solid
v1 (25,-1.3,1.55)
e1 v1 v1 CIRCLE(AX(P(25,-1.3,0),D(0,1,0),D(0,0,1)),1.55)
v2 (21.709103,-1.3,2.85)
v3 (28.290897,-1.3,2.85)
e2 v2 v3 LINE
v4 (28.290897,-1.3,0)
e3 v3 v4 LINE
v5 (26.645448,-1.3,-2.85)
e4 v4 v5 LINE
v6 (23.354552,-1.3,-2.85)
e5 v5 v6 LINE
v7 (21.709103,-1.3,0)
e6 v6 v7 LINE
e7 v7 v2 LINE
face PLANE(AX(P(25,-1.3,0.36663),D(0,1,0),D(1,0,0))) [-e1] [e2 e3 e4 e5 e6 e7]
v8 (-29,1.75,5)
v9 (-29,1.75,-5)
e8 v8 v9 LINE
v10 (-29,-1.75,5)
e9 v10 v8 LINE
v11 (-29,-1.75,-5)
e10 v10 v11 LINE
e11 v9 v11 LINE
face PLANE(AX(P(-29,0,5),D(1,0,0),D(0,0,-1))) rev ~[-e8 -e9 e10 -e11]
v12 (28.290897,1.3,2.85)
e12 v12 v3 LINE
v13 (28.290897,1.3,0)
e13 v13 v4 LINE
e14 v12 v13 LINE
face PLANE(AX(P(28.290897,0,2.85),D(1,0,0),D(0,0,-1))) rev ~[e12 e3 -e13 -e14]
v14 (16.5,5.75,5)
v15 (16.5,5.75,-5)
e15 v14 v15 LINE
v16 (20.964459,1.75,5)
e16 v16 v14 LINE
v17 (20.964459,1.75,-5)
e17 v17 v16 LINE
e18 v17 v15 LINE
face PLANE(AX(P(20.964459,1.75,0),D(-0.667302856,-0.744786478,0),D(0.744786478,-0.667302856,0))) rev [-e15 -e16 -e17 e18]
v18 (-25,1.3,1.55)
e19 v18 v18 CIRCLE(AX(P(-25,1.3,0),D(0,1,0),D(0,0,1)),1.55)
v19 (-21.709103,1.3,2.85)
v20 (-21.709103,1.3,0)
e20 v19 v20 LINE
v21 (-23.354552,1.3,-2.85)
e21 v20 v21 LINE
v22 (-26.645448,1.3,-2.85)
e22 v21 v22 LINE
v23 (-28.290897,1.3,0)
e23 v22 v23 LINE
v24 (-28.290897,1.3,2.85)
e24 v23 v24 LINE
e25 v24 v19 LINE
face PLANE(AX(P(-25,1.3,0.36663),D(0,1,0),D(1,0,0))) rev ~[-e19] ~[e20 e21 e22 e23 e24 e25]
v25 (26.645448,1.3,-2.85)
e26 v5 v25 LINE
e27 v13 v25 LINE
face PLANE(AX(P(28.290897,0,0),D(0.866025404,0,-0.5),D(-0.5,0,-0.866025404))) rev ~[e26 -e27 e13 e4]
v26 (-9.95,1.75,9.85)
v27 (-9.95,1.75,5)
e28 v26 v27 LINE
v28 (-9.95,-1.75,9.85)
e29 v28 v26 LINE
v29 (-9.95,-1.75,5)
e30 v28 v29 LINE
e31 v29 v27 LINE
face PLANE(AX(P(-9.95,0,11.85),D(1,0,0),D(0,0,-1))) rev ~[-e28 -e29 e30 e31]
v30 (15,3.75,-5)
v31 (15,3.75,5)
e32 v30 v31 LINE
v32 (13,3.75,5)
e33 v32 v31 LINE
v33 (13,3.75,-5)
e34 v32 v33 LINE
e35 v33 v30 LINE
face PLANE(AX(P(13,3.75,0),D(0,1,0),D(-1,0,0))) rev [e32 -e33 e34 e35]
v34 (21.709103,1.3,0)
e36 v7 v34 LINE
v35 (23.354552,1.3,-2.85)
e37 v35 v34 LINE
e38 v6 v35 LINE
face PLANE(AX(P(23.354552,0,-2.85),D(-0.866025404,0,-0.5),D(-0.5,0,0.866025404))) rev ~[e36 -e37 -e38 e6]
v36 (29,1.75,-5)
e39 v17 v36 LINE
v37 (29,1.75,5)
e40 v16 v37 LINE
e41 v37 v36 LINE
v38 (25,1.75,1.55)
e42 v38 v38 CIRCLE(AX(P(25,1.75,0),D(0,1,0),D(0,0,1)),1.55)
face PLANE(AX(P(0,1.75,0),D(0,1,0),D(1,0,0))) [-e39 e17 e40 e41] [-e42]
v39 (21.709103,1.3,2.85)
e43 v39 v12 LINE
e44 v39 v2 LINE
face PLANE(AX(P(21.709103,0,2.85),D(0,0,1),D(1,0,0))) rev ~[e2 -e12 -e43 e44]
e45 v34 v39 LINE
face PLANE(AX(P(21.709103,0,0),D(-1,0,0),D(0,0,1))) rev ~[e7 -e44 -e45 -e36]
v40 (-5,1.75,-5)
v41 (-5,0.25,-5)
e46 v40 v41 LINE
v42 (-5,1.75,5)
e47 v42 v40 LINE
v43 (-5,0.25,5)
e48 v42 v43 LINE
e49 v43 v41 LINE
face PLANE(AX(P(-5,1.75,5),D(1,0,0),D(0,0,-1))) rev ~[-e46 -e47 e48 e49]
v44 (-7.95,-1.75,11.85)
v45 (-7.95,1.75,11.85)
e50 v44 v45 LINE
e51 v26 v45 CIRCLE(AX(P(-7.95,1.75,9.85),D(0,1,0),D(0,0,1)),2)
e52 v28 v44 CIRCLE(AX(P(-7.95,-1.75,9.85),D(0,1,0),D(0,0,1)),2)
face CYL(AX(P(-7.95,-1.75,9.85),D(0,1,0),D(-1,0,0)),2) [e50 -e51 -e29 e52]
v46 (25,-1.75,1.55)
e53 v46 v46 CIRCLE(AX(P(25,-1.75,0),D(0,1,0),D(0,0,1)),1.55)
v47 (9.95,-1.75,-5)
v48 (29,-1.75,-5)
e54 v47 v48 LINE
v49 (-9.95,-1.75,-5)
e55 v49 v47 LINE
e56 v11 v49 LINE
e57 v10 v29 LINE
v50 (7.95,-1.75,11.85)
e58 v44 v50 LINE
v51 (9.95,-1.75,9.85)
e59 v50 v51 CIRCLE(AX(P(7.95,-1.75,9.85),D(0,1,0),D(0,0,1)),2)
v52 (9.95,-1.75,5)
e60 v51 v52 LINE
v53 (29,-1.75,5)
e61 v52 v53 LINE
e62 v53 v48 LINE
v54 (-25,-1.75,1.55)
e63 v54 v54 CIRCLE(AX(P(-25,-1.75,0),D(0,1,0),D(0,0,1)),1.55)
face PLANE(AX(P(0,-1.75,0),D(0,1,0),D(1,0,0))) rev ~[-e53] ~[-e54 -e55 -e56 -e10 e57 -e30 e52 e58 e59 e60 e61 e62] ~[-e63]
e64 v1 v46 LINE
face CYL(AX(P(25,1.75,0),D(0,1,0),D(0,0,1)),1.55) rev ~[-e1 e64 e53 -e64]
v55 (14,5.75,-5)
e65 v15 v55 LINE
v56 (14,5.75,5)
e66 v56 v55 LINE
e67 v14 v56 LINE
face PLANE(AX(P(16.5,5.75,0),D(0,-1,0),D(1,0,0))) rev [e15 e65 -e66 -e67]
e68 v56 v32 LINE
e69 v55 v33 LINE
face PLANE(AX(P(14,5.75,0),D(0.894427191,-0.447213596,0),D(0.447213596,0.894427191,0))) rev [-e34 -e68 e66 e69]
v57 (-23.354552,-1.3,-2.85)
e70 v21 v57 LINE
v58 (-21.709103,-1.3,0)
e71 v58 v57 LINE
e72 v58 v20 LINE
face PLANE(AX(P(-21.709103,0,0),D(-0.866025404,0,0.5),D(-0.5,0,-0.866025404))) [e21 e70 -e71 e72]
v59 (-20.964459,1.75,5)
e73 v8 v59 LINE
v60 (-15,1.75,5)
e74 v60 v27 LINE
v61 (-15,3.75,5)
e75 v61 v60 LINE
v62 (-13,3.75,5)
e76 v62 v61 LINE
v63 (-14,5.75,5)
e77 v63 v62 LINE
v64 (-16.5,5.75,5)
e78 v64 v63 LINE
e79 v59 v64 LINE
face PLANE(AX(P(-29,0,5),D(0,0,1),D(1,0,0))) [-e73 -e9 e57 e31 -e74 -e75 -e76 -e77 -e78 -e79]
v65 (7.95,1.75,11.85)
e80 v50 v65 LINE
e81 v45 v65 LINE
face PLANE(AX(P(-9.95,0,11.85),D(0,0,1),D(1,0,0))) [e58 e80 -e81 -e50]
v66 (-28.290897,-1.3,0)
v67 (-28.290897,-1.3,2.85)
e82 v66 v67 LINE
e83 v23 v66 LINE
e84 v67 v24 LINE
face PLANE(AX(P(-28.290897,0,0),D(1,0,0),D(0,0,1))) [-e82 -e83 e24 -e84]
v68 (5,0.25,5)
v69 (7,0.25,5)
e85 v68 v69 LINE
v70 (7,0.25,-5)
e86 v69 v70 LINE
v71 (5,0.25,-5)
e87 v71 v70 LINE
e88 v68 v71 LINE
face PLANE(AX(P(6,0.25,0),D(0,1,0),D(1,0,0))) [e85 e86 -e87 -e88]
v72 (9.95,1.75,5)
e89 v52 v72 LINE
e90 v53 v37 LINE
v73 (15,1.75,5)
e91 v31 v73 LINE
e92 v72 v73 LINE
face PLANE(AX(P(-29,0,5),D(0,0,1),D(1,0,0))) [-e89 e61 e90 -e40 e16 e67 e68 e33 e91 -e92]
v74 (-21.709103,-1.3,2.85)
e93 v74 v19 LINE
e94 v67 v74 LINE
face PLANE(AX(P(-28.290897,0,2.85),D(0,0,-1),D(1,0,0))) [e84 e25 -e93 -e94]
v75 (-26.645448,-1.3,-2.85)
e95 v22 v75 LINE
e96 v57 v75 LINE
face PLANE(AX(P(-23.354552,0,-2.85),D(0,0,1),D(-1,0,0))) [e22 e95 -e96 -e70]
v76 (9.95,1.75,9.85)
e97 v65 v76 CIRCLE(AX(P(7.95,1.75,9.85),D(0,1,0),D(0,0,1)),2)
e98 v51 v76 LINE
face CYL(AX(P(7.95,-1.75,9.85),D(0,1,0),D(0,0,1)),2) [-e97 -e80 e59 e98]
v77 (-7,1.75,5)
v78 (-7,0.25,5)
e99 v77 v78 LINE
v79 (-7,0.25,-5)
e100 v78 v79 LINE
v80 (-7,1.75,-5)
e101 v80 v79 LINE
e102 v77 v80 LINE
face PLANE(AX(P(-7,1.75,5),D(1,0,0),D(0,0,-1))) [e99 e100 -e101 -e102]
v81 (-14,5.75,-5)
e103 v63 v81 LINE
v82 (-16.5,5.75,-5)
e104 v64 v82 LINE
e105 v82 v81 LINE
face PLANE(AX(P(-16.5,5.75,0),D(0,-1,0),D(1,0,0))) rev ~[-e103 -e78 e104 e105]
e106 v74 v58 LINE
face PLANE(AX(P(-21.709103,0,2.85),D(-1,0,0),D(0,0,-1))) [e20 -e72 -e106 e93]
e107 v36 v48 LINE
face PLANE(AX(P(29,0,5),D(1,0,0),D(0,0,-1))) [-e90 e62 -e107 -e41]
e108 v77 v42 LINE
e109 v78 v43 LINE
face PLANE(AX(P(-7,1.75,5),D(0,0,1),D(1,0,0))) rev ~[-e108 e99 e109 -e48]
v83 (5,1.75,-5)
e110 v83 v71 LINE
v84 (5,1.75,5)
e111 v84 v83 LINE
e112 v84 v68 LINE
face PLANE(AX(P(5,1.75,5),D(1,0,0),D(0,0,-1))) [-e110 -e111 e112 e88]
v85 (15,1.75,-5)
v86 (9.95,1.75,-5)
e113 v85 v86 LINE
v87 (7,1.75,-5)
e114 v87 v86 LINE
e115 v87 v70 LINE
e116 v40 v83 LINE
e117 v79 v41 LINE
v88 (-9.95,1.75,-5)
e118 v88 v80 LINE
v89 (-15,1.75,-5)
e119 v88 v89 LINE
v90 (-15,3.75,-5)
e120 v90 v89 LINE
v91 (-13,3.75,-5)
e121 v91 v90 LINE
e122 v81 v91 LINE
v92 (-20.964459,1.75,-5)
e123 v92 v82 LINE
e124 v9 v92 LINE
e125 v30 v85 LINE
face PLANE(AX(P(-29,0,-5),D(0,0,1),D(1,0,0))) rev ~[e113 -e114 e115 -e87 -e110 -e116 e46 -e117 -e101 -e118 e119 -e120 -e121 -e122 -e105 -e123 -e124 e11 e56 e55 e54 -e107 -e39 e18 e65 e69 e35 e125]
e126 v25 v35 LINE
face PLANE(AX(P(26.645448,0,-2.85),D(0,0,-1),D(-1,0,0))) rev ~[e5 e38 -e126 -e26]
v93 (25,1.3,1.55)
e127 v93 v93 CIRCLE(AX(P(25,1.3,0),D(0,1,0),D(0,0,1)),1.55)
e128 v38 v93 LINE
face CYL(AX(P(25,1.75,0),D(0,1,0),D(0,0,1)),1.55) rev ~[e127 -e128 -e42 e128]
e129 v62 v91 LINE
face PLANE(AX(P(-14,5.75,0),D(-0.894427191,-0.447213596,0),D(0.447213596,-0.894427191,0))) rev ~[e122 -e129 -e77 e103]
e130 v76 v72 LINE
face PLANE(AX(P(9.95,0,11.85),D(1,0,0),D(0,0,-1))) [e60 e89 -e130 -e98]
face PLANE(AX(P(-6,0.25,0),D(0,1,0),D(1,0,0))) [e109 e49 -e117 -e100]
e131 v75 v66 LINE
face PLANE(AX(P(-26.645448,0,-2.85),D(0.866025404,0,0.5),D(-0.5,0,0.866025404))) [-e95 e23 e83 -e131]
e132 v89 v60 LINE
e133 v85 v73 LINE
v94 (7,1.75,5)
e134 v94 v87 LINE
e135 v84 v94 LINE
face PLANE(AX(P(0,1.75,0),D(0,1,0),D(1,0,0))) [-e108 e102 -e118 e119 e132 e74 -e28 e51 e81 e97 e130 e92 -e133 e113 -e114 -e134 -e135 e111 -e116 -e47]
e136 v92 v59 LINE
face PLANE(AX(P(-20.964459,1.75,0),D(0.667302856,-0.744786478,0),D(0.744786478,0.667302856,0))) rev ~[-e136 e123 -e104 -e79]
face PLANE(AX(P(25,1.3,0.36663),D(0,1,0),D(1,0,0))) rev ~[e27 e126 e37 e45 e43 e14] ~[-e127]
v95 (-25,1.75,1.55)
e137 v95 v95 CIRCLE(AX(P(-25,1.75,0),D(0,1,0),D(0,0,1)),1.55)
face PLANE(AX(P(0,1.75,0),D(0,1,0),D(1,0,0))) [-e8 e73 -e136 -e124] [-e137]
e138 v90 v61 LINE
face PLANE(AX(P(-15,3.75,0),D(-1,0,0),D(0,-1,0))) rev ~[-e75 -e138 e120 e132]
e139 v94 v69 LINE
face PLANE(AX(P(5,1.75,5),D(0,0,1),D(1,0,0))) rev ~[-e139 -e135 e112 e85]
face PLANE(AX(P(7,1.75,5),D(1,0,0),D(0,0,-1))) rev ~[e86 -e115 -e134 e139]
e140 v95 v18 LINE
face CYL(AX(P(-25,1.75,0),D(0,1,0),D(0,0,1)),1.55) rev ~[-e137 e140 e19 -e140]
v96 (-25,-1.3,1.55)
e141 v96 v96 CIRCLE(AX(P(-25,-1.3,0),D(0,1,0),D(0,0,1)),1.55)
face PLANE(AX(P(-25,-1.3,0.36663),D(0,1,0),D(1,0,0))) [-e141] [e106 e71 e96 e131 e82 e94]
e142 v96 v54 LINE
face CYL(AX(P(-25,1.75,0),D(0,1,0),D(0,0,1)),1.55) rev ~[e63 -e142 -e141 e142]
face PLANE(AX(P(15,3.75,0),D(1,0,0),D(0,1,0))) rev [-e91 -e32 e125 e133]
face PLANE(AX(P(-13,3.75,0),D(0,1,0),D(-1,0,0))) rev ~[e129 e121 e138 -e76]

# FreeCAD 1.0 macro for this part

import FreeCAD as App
import Part
import Sketcher
Q = App.Units.Quantity


def edges_at(feature, points):
    """Names of the edges that pass closest to the given points."""
    edges = feature.Shape.Edges
    near = lambda p: min(range(len(edges)), key=lambda i: edges[i].distToShape(Part.Vertex(*p))[0])
    return sorted({f"Edge{near(p) + 1}" for p in points})

doc = App.newDocument("Part")
body = doc.addObject("PartDesign::Body", "Body")

sketch1 = body.newObject("Sketcher::SketchObject", "Sketch")
sketch1.AttachmentSupport = (doc.getObject("XZ_Plane"), [""])
sketch1.MapMode = "FlatFace"
sketch1.addGeometry([
    Part.LineSegment(App.Vector(-29, -5, 0), App.Vector(-29, 5, 0)),
    Part.LineSegment(App.Vector(-29, 5, 0), App.Vector(29, 5, 0)),
    Part.LineSegment(App.Vector(29, 5, 0), App.Vector(29, -5, 0)),
    Part.LineSegment(App.Vector(29, -5, 0), App.Vector(-29, -5, 0)),
], False)
sketch1.addConstraint([
    Sketcher.Constraint("Coincident", 0, 2, 1, 1),
    Sketcher.Constraint("Coincident", 1, 2, 2, 1),
    Sketcher.Constraint("Coincident", 2, 2, 3, 1),
    Sketcher.Constraint("Coincident", 3, 2, 0, 1),
    Sketcher.Constraint("Vertical", 0),
    Sketcher.Constraint("Horizontal", 1),
    Sketcher.Constraint("Vertical", 2),
    Sketcher.Constraint("Horizontal", 3),
    Sketcher.Constraint("Symmetric", 0, 2, 2, 2, -1, 1),
    Sketcher.Constraint("DistanceX", 1, 1, 1, 2, 58.0),
    Sketcher.Constraint("DistanceY", 0, 1, 0, 2, 10.0),
])
pad1 = body.newObject("PartDesign::Pad", "Pad")
pad1.Profile = sketch1
pad1.Length = 3.5
pad1.Midplane = True

sketch2 = body.newObject("Sketcher::SketchObject", "Sketch001")
sketch2.AttachmentSupport = (doc.getObject("XZ_Plane"), [""])
sketch2.MapMode = "FlatFace"
sketch2.AttachmentOffset = App.Placement(App.Vector(0, 0, -1.75), App.Rotation())
sketch2.addGeometry([
    Part.Circle(App.Vector(-25, 0, 0), App.Vector(0, 0, 1), 1.55),
    Part.Circle(App.Vector(25, 0, 0), App.Vector(0, 0, 1), 1.55),
], False)
sketch2.addConstraint([
    Sketcher.Constraint("Equal", 0, 1),
    Sketcher.Constraint("Symmetric", 0, 3, 1, 3, -1, 1),
    Sketcher.Constraint("PointOnObject", 0, 3, -1),
    Sketcher.Constraint("Diameter", 0, 3.1),
    Sketcher.Constraint("DistanceX", 0, 3, -1, 1, 25.0),
])
pocket1 = body.newObject("PartDesign::Pocket", "Pocket")
pocket1.Profile = sketch2
pocket1.Length = 3.5
pocket1.Reversed = True

sketch3 = body.newObject("Sketcher::SketchObject", "Sketch002")
sketch3.AttachmentSupport = (doc.getObject("XZ_Plane"), [""])
sketch3.MapMode = "FlatFace"
sketch3.addGeometry([
    Part.LineSegment(App.Vector(-28.290897, 0, 0), App.Vector(-28.290897, 2.85, 0)),
    Part.LineSegment(App.Vector(-28.290897, 2.85, 0), App.Vector(-21.709103, 2.85, 0)),
    Part.LineSegment(App.Vector(-21.709103, 2.85, 0), App.Vector(-21.709103, 0, 0)),
    Part.LineSegment(App.Vector(-21.709103, 0, 0), App.Vector(-23.354552, -2.85, 0)),
    Part.LineSegment(App.Vector(-23.354552, -2.85, 0), App.Vector(-26.645448, -2.85, 0)),
    Part.LineSegment(App.Vector(-26.645448, -2.85, 0), App.Vector(-28.290897, 0, 0)),
    Part.LineSegment(App.Vector(28.290897, 0, 0), App.Vector(26.645448, -2.85, 0)),
    Part.LineSegment(App.Vector(26.645448, -2.85, 0), App.Vector(23.354552, -2.85, 0)),
    Part.LineSegment(App.Vector(23.354552, -2.85, 0), App.Vector(21.709103, 0, 0)),
    Part.LineSegment(App.Vector(21.709103, 0, 0), App.Vector(21.709103, 2.85, 0)),
    Part.LineSegment(App.Vector(21.709103, 2.85, 0), App.Vector(28.290897, 2.85, 0)),
    Part.LineSegment(App.Vector(28.290897, 2.85, 0), App.Vector(28.290897, 0, 0)),
], False)
sketch3.addConstraint([
    Sketcher.Constraint("Coincident", 0, 2, 1, 1),
    Sketcher.Constraint("Coincident", 1, 2, 2, 1),
    Sketcher.Constraint("Coincident", 2, 2, 3, 1),
    Sketcher.Constraint("Coincident", 3, 2, 4, 1),
    Sketcher.Constraint("Coincident", 4, 2, 5, 1),
    Sketcher.Constraint("Coincident", 5, 2, 0, 1),
    Sketcher.Constraint("Coincident", 6, 2, 7, 1),
    Sketcher.Constraint("Coincident", 7, 2, 8, 1),
    Sketcher.Constraint("Coincident", 8, 2, 9, 1),
    Sketcher.Constraint("Coincident", 9, 2, 10, 1),
    Sketcher.Constraint("Coincident", 10, 2, 11, 1),
    Sketcher.Constraint("Coincident", 11, 2, 6, 1),
    Sketcher.Constraint("Vertical", 0),
    Sketcher.Constraint("Horizontal", 1),
    Sketcher.Constraint("Vertical", 2),
    Sketcher.Constraint("Horizontal", 4),
    Sketcher.Constraint("Horizontal", 7),
    Sketcher.Constraint("Vertical", 9),
    Sketcher.Constraint("Horizontal", 10),
    Sketcher.Constraint("Vertical", 11),
    Sketcher.Constraint("Symmetric", 2, 2, 8, 2, -1, 1),
    Sketcher.Constraint("Symmetric", 5, 2, 11, 2, -1, 1),
    Sketcher.Constraint("Symmetric", 4, 2, 6, 2, -2),
    Sketcher.Constraint("PointOnObject", 2, 2, -1),
    Sketcher.Constraint("PointOnObject", 5, 2, -1),
    Sketcher.Constraint("Parallel", 3, 6),
    Sketcher.Constraint("Parallel", 5, 8),
    Sketcher.Constraint("Horizontal", 1, 2, 9, 2),
    Sketcher.Constraint("Angle", 3, Q("-120 deg")),
    Sketcher.Constraint("DistanceX", 3, 2, 6, 2, 50.0),
    Sketcher.Constraint("DistanceY", 0, 1, 0, 2, 2.85),
    Sketcher.Constraint("DistanceY", 3, 2, 1, 2, 5.7),
    Sketcher.Constraint("DistanceX", 1, 1, 1, 2, 6.581793),
])
pocket2 = body.newObject("PartDesign::Pocket", "Pocket001")
pocket2.Profile = sketch3
pocket2.Length = 2.6
pocket2.Midplane = True

sketch4 = body.newObject("Sketcher::SketchObject", "Sketch003")
sketch4.AttachmentSupport = (doc.getObject("XZ_Plane"), [""])
sketch4.MapMode = "FlatFace"
sketch4.addGeometry([
    Part.LineSegment(App.Vector(-9.95, -11.85, 0), App.Vector(-9.95, 11.85, 0)),
    Part.LineSegment(App.Vector(-9.95, 11.85, 0), App.Vector(9.95, 11.85, 0)),
    Part.LineSegment(App.Vector(9.95, 11.85, 0), App.Vector(9.95, -11.85, 0)),
    Part.LineSegment(App.Vector(9.95, -11.85, 0), App.Vector(-9.95, -11.85, 0)),
], False)
sketch4.addConstraint([
    Sketcher.Constraint("Coincident", 0, 2, 1, 1),
    Sketcher.Constraint("Coincident", 1, 2, 2, 1),
    Sketcher.Constraint("Coincident", 2, 2, 3, 1),
    Sketcher.Constraint("Coincident", 3, 2, 0, 1),
    Sketcher.Constraint("Vertical", 0),
    Sketcher.Constraint("Horizontal", 1),
    Sketcher.Constraint("Vertical", 2),
    Sketcher.Constraint("Horizontal", 3),
    Sketcher.Constraint("Symmetric", 0, 2, 2, 2, -1, 1),
    Sketcher.Constraint("DistanceX", 1, 1, 1, 2, 19.9),
    Sketcher.Constraint("DistanceY", 0, 1, 0, 2, 23.7),
])
pad2 = body.newObject("PartDesign::Pad", "Pad001")
pad2.Profile = sketch4
pad2.Length = 3.5
pad2.Midplane = True
doc.recompute()

fillet = body.newObject("PartDesign::Fillet", "Fillet")
fillet.Base = (pad2, edges_at(pad2, [(9.95, 0, 11.85), (-9.95, 0, 11.85)]))
fillet.Radius = 2

sketch5 = body.newObject("Sketcher::SketchObject", "Sketch004")
sketch5.AttachmentSupport = (doc.getObject("XY_Plane"), [""])
sketch5.MapMode = "FlatFace"
sketch5.addGeometry([
    Part.LineSegment(App.Vector(-16.5, 5.75, 0), App.Vector(-20.964459, 1.75, 0)),
    Part.LineSegment(App.Vector(-20.964459, 1.75, 0), App.Vector(-15, 1.75, 0)),
    Part.LineSegment(App.Vector(-15, 1.75, 0), App.Vector(-15, 3.75, 0)),
    Part.LineSegment(App.Vector(-15, 3.75, 0), App.Vector(-13, 3.75, 0)),
    Part.LineSegment(App.Vector(-13, 3.75, 0), App.Vector(-14, 5.75, 0)),
    Part.LineSegment(App.Vector(-14, 5.75, 0), App.Vector(-16.5, 5.75, 0)),
], False)
sketch5.addConstraint([
    Sketcher.Constraint("Coincident", 0, 2, 1, 1),
    Sketcher.Constraint("Coincident", 1, 2, 2, 1),
    Sketcher.Constraint("Coincident", 2, 2, 3, 1),
    Sketcher.Constraint("Coincident", 3, 2, 4, 1),
    Sketcher.Constraint("Coincident", 4, 2, 5, 1),
    Sketcher.Constraint("Coincident", 5, 2, 0, 1),
    Sketcher.Constraint("Horizontal", 1),
    Sketcher.Constraint("Vertical", 2),
    Sketcher.Constraint("Horizontal", 3),
    Sketcher.Constraint("Horizontal", 5),
    Sketcher.Constraint("Equal", 3, 2),
    Sketcher.Constraint("DistanceX", 3, 1, 3, 2, 2.0),
    Sketcher.Constraint("DistanceX", 5, 2, 5, 1, 2.5),
    Sketcher.Constraint("DistanceX", 1, 2, -1, 1, 15.0),
    Sketcher.Constraint("DistanceX", 4, 2, -1, 1, 14.0),
    Sketcher.Constraint("DistanceY", 2, 2, 4, 2, 2.0),
    Sketcher.Constraint("DistanceY", -1, 1, 0, 2, 1.75),
    Sketcher.Constraint("DistanceX", 1, 1, 1, 2, 5.964459),
])
pad3 = body.newObject("PartDesign::Pad", "Pad002")
pad3.Profile = sketch5
pad3.Length = 10
pad3.Midplane = True
doc.recompute()

mirrored = body.newObject("PartDesign::Mirrored", "Mirrored")
mirrored.Originals = [pad3]
mirrored.MirrorPlane = (doc.getObject("YZ_Plane"), [""])
body.Tip = mirrored

sketch6 = body.newObject("Sketcher::SketchObject", "Sketch005")
sketch6.AttachmentSupport = (doc.getObject("XZ_Plane"), [""])
sketch6.MapMode = "FlatFace"
sketch6.AttachmentOffset = App.Placement(App.Vector(0, 0, -1.75), App.Rotation())
sketch6.addGeometry([
    Part.LineSegment(App.Vector(-7, -5, 0), App.Vector(-7, 5, 0)),
    Part.LineSegment(App.Vector(-7, 5, 0), App.Vector(-5, 5, 0)),
    Part.LineSegment(App.Vector(-5, 5, 0), App.Vector(-5, -5, 0)),
    Part.LineSegment(App.Vector(-5, -5, 0), App.Vector(-7, -5, 0)),
    Part.LineSegment(App.Vector(5, -5, 0), App.Vector(5, 5, 0)),
    Part.LineSegment(App.Vector(5, 5, 0), App.Vector(7, 5, 0)),
    Part.LineSegment(App.Vector(7, 5, 0), App.Vector(7, -5, 0)),
    Part.LineSegment(App.Vector(7, -5, 0), App.Vector(5, -5, 0)),
], False)
sketch6.addConstraint([
    Sketcher.Constraint("Coincident", 0, 2, 1, 1),
    Sketcher.Constraint("Coincident", 1, 2, 2, 1),
    Sketcher.Constraint("Coincident", 2, 2, 3, 1),
    Sketcher.Constraint("Coincident", 3, 2, 0, 1),
    Sketcher.Constraint("Coincident", 4, 2, 5, 1),
    Sketcher.Constraint("Coincident", 5, 2, 6, 1),
    Sketcher.Constraint("Coincident", 6, 2, 7, 1),
    Sketcher.Constraint("Coincident", 7, 2, 4, 1),
    Sketcher.Constraint("Vertical", 0),
    Sketcher.Constraint("Horizontal", 1),
    Sketcher.Constraint("Vertical", 2),
    Sketcher.Constraint("Horizontal", 3),
    Sketcher.Constraint("Vertical", 4),
    Sketcher.Constraint("Horizontal", 5),
    Sketcher.Constraint("Vertical", 6),
    Sketcher.Constraint("Horizontal", 7),
    Sketcher.Constraint("Symmetric", 2, 2, 4, 2, -1, 1),
    Sketcher.Constraint("Symmetric", 0, 2, 6, 2, -1, 1),
    Sketcher.Constraint("Horizontal", 1, 2, 4, 2),
    Sketcher.Constraint("DistanceX", 1, 1, 1, 2, 2.0),
    Sketcher.Constraint("DistanceY", 0, 1, 0, 2, 10.0),
    Sketcher.Constraint("DistanceX", 0, 2, -1, 1, 7.0),
])
pocket3 = body.newObject("PartDesign::Pocket", "Pocket002")
pocket3.Profile = sketch6
pocket3.Length = 1.5
pocket3.Reversed = True

sketch7 = body.newObject("Sketcher::SketchObject", "Sketch006")
sketch7.AttachmentSupport = (doc.getObject("XZ_Plane"), [""])
sketch7.MapMode = "FlatFace"
sketch7.addGeometry([
    Part.LineSegment(App.Vector(-11.471044, -19.934673, 0), App.Vector(-11.471044, -5, 0)),
    Part.LineSegment(App.Vector(-11.471044, -5, 0), App.Vector(12.337936, -5, 0)),
    Part.LineSegment(App.Vector(12.337936, -5, 0), App.Vector(12.337936, -19.934673, 0)),
    Part.LineSegment(App.Vector(12.337936, -19.934673, 0), App.Vector(-11.471044, -19.934673, 0)),
], False)
sketch7.addConstraint([
    Sketcher.Constraint("Coincident", 0, 2, 1, 1),
    Sketcher.Constraint("Coincident", 1, 2, 2, 1),
    Sketcher.Constraint("Coincident", 2, 2, 3, 1),
    Sketcher.Constraint("Coincident", 3, 2, 0, 1),
    Sketcher.Constraint("Vertical", 0),
    Sketcher.Constraint("Horizontal", 1),
    Sketcher.Constraint("Vertical", 2),
    Sketcher.Constraint("Horizontal", 3),
    Sketcher.Constraint("DistanceY", 0, 2, -1, 1, 5.0),
    Sketcher.Constraint("DistanceX", 1, 1, 1, 2, 23.80898),
    Sketcher.Constraint("DistanceY", 0, 1, 0, 2, 14.934673),
    Sketcher.Constraint("DistanceX", 0, 2, -1, 1, 11.471044),
])
pocket4 = body.newObject("PartDesign::Pocket", "Pocket003")
pocket4.Profile = sketch7
pocket4.Length = 10
pocket4.Midplane = True

doc.recompute()
